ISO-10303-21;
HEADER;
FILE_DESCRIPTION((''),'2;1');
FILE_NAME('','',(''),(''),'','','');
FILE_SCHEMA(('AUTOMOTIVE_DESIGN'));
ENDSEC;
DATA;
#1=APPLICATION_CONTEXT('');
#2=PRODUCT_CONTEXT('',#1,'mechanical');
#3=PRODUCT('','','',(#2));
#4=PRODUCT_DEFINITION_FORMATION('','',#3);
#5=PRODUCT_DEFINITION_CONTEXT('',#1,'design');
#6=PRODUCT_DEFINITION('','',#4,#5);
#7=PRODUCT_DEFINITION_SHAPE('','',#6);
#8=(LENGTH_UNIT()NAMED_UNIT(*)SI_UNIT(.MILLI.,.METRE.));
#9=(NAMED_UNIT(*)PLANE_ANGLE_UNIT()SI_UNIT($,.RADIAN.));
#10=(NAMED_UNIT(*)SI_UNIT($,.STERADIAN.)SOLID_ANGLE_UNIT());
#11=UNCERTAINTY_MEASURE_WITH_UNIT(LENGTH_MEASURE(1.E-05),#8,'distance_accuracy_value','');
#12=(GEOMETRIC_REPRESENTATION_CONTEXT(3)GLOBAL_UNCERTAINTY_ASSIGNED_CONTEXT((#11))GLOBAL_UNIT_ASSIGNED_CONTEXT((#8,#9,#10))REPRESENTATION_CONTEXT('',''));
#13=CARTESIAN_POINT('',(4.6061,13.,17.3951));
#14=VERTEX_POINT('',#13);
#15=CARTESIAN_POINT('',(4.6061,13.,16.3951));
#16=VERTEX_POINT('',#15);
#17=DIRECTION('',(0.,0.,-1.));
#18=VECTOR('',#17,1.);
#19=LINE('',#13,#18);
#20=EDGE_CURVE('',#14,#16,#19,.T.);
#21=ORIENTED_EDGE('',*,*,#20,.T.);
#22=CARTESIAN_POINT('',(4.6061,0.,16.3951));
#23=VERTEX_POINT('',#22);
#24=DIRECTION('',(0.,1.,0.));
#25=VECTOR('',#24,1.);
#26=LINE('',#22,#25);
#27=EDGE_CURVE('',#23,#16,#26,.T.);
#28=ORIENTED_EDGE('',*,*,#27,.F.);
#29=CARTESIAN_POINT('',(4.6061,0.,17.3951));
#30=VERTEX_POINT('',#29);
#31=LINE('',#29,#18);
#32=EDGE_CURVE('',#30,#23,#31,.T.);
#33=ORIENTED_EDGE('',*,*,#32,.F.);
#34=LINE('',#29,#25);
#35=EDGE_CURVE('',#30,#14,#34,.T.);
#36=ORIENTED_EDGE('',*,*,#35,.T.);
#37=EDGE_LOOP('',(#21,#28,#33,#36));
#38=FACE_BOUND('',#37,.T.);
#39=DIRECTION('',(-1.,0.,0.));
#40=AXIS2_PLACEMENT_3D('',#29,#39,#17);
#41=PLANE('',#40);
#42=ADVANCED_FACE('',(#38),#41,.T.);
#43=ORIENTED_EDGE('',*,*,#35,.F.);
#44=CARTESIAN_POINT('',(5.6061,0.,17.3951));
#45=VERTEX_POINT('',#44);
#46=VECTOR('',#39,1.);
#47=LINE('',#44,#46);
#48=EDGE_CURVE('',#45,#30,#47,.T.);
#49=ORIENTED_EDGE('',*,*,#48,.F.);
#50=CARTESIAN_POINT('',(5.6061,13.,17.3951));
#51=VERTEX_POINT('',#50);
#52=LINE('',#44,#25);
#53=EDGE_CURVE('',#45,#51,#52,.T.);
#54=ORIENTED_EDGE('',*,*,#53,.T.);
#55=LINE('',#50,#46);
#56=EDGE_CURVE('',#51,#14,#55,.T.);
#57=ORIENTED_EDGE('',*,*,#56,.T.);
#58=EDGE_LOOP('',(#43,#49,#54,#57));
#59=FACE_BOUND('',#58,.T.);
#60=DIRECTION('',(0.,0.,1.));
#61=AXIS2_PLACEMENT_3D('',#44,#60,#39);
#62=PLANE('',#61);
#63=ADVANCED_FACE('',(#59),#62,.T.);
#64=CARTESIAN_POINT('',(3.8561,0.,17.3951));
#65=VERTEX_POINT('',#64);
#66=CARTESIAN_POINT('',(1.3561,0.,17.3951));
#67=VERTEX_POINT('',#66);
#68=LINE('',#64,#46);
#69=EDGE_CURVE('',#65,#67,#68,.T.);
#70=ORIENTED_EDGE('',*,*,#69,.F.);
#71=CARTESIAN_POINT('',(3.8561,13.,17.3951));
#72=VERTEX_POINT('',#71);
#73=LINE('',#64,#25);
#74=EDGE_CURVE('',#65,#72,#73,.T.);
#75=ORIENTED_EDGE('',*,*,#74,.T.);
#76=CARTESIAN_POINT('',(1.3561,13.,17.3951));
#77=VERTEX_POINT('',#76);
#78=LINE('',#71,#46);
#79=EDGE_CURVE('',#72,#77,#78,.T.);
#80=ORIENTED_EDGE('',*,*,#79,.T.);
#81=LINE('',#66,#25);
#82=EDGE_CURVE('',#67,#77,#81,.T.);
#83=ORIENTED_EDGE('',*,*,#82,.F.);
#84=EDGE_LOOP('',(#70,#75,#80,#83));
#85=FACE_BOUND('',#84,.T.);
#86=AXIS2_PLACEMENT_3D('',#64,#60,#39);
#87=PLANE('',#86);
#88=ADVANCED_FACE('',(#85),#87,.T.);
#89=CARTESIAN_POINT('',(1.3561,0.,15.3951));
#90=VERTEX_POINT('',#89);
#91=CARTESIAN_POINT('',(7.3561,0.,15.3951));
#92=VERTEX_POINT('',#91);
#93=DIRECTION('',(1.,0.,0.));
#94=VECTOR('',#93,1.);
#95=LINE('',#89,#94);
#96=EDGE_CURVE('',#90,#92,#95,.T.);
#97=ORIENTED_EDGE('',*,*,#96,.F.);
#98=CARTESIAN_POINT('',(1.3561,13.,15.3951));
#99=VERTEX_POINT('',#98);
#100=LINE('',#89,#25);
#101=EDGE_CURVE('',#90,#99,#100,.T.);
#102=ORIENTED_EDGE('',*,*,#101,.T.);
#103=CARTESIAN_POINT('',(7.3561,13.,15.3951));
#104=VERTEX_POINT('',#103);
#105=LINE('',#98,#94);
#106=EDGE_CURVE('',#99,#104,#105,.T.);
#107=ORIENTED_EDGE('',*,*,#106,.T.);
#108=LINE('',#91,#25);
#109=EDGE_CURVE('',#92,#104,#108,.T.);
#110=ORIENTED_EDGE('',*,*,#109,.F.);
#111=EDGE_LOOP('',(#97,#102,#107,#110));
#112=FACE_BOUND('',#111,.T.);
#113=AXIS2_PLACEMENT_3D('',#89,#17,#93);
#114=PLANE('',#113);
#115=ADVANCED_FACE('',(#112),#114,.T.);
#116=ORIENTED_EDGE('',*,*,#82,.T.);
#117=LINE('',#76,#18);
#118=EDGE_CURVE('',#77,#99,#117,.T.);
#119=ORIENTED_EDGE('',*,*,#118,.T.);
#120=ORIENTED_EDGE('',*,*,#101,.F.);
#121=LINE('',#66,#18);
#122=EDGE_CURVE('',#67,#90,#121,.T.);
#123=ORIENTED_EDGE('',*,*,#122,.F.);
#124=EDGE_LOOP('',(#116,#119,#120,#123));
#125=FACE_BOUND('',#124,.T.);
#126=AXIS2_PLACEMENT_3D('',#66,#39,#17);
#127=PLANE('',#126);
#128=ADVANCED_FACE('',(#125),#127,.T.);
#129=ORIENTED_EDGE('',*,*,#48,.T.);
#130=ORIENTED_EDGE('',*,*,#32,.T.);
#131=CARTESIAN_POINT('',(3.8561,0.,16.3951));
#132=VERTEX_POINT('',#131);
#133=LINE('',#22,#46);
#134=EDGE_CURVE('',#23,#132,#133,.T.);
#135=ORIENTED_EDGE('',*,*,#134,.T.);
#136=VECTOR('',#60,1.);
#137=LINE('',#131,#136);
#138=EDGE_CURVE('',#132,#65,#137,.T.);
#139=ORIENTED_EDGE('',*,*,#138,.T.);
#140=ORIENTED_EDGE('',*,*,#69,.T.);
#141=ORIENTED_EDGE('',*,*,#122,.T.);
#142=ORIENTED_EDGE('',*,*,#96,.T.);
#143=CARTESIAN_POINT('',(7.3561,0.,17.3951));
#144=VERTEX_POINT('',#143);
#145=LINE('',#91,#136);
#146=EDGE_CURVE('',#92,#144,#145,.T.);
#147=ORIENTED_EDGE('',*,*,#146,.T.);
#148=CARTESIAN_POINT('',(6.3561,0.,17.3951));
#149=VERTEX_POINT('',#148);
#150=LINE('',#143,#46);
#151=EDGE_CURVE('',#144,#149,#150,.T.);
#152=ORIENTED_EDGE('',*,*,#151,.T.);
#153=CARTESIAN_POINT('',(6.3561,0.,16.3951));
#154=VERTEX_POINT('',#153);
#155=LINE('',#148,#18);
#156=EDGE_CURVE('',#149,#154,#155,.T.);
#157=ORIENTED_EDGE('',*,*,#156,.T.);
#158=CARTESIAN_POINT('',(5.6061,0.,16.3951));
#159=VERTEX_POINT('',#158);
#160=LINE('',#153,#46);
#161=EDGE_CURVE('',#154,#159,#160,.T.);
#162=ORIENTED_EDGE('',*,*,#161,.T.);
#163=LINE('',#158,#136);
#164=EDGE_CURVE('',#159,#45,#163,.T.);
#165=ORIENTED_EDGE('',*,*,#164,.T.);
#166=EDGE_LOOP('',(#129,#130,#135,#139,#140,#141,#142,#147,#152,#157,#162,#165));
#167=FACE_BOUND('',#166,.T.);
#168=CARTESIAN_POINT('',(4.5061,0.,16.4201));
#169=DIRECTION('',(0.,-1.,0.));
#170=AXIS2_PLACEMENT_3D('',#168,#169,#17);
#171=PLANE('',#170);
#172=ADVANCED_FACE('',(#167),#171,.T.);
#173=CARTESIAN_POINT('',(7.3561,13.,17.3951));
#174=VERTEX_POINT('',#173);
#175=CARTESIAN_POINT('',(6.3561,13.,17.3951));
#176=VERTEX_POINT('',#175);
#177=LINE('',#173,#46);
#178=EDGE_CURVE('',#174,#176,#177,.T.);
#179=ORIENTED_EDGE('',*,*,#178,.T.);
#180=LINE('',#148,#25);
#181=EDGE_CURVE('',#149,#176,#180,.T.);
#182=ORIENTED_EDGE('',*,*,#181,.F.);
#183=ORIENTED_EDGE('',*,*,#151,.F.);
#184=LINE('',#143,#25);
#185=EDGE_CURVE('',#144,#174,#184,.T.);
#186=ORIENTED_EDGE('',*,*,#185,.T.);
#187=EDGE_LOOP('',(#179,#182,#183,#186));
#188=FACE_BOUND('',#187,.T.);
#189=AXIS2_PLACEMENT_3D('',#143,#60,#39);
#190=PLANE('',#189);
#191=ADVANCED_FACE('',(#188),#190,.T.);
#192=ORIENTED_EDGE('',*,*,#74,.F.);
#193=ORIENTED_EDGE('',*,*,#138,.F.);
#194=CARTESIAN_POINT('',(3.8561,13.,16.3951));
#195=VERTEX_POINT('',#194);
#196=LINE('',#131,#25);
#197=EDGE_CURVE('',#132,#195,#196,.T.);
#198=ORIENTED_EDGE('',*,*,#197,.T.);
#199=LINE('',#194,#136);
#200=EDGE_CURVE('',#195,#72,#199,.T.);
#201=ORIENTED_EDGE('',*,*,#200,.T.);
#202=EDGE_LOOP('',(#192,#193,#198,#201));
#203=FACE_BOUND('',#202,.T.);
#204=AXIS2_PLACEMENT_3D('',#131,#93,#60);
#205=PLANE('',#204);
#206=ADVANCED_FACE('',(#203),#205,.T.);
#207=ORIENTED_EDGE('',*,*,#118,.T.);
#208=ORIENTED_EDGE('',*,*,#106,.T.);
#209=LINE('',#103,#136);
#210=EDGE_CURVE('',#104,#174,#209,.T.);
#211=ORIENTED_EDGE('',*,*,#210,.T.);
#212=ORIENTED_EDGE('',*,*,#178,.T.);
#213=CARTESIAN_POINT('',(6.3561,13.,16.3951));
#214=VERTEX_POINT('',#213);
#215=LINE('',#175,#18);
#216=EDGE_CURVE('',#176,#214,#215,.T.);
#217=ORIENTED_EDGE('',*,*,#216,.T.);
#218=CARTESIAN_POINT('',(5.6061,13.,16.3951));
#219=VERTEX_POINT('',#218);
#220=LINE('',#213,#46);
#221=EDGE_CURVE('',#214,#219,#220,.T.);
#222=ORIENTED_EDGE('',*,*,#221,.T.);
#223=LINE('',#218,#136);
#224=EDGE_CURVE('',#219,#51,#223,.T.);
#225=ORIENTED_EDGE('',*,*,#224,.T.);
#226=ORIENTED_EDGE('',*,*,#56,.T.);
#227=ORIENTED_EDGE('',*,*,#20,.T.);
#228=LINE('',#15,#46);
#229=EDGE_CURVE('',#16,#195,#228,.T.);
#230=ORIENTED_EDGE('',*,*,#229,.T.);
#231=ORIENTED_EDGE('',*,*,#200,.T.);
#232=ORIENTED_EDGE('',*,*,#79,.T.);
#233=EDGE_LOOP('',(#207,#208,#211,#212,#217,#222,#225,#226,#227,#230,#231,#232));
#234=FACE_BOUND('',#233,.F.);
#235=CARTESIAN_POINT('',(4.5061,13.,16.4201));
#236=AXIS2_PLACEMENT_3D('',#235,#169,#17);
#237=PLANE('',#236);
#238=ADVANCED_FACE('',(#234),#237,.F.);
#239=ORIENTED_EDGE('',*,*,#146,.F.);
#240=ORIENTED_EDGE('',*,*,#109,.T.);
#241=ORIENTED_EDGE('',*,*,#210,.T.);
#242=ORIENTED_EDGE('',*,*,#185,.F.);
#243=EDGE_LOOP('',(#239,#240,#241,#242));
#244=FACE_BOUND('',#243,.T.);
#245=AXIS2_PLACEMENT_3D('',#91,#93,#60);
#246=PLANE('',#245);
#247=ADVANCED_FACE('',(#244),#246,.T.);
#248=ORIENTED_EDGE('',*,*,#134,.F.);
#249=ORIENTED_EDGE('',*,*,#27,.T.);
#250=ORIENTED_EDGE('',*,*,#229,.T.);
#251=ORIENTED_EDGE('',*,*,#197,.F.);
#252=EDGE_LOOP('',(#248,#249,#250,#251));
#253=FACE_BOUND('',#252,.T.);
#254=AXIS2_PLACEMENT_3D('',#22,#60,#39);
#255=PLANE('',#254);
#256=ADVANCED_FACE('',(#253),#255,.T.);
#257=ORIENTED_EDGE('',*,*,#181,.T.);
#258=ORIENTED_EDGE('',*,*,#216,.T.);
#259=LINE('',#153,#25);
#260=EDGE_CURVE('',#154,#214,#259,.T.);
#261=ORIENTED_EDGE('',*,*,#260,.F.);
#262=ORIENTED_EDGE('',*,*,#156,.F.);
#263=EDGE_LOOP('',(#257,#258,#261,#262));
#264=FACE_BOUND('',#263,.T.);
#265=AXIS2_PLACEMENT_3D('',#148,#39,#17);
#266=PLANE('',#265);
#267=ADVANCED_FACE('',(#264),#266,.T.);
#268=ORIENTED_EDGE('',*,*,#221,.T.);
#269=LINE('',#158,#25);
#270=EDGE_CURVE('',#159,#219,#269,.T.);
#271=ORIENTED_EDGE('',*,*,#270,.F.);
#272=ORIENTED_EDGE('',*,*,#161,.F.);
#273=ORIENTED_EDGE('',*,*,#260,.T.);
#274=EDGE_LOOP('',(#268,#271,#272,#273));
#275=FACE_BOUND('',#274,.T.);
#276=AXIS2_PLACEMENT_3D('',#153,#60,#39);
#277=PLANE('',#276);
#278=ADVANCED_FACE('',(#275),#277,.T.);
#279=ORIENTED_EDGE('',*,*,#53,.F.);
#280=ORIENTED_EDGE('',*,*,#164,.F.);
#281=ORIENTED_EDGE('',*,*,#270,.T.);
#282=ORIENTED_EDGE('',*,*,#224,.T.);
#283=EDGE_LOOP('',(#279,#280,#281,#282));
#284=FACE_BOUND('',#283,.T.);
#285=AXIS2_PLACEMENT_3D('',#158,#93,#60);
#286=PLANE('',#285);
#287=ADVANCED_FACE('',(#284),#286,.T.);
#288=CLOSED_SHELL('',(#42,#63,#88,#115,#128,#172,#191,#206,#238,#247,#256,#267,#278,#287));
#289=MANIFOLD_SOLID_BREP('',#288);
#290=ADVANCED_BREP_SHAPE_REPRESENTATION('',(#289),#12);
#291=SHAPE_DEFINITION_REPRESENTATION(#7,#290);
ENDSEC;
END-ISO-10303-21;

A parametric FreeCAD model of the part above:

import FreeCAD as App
import Part
import Sketcher

V = App.Vector
Q = App.Units.Quantity


def add_polygon(sketch, points):
    """Adds a closed chain of lines whose ends are joined by coincident constraints."""
    first, n = sketch.GeometryCount, len(points)
    for a, b in zip(points, points[1:] + points[:1]):
        sketch.addGeometry(Part.LineSegment(App.Vector(*a, 0), App.Vector(*b, 0)), False)
    for i in range(n):
        sketch.addConstraint(Sketcher.Constraint("Coincident", first + i, 2, first + (i + 1) % n, 1))

doc = App.newDocument("Part")
body = doc.addObject("PartDesign::Body", "Body")

# Sketch on XZ plane
sketch1 = body.newObject("Sketcher::SketchObject", "Sketch")
sketch1.AttachmentSupport = (doc.getObject("XZ_Plane"), [""])
sketch1.MapMode = "FlatFace"
add_polygon(sketch1, [(1.4, 17.4), (1.4, 15.4), (7.4, 15.4), (7.4, 17.4), (6.4, 17.4), (6.4, 16.4), (5.6, 16.4), (5.6, 17.4), (4.6, 17.4), (4.6, 16.4), (3.9, 16.4), (3.9, 17.4)])  # lines 0-11
sketch1.addConstraint([
    Sketcher.Constraint("Vertical", 0),
    Sketcher.Constraint("Horizontal", 1),
    Sketcher.Constraint("Vertical", 2),
    Sketcher.Constraint("Horizontal", 3),
    Sketcher.Constraint("Vertical", 4),
    Sketcher.Constraint("Horizontal", 5),
    Sketcher.Constraint("Vertical", 6),
    Sketcher.Constraint("Horizontal", 7),
    Sketcher.Constraint("Vertical", 8),
    Sketcher.Constraint("Horizontal", 9),
    Sketcher.Constraint("Vertical", 10),
    Sketcher.Constraint("Horizontal", 11),
    Sketcher.Constraint("Horizontal", 3, 2, 6, 2),
    Sketcher.Constraint("Horizontal", 5, 2, 8, 2),
    Sketcher.Constraint("Horizontal", 7, 2, 10, 2),
    Sketcher.Constraint("Equal", 3, 7),
    Sketcher.Constraint("Equal", 5, 9),
    Sketcher.Constraint("Equal", 7, 4),
    Sketcher.Constraint("DistanceX", 1, 1, 1, 2, Q("6 mm")),
    Sketcher.Constraint("DistanceX", 3, 2, 3, 1, Q("1 mm")),
    Sketcher.Constraint("DistanceY", 0, 2, 0, 1, Q("2 mm")),
    Sketcher.Constraint("DistanceX", 11, 2, 11, 1, Q("2.5 mm")),
    Sketcher.Constraint("DistanceX", -1, 1, 0, 2, Q("1.356 mm")),
    Sketcher.Constraint("DistanceY", -1, 1, 0, 2, Q("15.395 mm")),
])
pad1 = body.newObject("PartDesign::Pad", "Pad")
pad1.Profile = sketch1
pad1.Length = 13
pad1.Reversed = True

doc.recompute()
